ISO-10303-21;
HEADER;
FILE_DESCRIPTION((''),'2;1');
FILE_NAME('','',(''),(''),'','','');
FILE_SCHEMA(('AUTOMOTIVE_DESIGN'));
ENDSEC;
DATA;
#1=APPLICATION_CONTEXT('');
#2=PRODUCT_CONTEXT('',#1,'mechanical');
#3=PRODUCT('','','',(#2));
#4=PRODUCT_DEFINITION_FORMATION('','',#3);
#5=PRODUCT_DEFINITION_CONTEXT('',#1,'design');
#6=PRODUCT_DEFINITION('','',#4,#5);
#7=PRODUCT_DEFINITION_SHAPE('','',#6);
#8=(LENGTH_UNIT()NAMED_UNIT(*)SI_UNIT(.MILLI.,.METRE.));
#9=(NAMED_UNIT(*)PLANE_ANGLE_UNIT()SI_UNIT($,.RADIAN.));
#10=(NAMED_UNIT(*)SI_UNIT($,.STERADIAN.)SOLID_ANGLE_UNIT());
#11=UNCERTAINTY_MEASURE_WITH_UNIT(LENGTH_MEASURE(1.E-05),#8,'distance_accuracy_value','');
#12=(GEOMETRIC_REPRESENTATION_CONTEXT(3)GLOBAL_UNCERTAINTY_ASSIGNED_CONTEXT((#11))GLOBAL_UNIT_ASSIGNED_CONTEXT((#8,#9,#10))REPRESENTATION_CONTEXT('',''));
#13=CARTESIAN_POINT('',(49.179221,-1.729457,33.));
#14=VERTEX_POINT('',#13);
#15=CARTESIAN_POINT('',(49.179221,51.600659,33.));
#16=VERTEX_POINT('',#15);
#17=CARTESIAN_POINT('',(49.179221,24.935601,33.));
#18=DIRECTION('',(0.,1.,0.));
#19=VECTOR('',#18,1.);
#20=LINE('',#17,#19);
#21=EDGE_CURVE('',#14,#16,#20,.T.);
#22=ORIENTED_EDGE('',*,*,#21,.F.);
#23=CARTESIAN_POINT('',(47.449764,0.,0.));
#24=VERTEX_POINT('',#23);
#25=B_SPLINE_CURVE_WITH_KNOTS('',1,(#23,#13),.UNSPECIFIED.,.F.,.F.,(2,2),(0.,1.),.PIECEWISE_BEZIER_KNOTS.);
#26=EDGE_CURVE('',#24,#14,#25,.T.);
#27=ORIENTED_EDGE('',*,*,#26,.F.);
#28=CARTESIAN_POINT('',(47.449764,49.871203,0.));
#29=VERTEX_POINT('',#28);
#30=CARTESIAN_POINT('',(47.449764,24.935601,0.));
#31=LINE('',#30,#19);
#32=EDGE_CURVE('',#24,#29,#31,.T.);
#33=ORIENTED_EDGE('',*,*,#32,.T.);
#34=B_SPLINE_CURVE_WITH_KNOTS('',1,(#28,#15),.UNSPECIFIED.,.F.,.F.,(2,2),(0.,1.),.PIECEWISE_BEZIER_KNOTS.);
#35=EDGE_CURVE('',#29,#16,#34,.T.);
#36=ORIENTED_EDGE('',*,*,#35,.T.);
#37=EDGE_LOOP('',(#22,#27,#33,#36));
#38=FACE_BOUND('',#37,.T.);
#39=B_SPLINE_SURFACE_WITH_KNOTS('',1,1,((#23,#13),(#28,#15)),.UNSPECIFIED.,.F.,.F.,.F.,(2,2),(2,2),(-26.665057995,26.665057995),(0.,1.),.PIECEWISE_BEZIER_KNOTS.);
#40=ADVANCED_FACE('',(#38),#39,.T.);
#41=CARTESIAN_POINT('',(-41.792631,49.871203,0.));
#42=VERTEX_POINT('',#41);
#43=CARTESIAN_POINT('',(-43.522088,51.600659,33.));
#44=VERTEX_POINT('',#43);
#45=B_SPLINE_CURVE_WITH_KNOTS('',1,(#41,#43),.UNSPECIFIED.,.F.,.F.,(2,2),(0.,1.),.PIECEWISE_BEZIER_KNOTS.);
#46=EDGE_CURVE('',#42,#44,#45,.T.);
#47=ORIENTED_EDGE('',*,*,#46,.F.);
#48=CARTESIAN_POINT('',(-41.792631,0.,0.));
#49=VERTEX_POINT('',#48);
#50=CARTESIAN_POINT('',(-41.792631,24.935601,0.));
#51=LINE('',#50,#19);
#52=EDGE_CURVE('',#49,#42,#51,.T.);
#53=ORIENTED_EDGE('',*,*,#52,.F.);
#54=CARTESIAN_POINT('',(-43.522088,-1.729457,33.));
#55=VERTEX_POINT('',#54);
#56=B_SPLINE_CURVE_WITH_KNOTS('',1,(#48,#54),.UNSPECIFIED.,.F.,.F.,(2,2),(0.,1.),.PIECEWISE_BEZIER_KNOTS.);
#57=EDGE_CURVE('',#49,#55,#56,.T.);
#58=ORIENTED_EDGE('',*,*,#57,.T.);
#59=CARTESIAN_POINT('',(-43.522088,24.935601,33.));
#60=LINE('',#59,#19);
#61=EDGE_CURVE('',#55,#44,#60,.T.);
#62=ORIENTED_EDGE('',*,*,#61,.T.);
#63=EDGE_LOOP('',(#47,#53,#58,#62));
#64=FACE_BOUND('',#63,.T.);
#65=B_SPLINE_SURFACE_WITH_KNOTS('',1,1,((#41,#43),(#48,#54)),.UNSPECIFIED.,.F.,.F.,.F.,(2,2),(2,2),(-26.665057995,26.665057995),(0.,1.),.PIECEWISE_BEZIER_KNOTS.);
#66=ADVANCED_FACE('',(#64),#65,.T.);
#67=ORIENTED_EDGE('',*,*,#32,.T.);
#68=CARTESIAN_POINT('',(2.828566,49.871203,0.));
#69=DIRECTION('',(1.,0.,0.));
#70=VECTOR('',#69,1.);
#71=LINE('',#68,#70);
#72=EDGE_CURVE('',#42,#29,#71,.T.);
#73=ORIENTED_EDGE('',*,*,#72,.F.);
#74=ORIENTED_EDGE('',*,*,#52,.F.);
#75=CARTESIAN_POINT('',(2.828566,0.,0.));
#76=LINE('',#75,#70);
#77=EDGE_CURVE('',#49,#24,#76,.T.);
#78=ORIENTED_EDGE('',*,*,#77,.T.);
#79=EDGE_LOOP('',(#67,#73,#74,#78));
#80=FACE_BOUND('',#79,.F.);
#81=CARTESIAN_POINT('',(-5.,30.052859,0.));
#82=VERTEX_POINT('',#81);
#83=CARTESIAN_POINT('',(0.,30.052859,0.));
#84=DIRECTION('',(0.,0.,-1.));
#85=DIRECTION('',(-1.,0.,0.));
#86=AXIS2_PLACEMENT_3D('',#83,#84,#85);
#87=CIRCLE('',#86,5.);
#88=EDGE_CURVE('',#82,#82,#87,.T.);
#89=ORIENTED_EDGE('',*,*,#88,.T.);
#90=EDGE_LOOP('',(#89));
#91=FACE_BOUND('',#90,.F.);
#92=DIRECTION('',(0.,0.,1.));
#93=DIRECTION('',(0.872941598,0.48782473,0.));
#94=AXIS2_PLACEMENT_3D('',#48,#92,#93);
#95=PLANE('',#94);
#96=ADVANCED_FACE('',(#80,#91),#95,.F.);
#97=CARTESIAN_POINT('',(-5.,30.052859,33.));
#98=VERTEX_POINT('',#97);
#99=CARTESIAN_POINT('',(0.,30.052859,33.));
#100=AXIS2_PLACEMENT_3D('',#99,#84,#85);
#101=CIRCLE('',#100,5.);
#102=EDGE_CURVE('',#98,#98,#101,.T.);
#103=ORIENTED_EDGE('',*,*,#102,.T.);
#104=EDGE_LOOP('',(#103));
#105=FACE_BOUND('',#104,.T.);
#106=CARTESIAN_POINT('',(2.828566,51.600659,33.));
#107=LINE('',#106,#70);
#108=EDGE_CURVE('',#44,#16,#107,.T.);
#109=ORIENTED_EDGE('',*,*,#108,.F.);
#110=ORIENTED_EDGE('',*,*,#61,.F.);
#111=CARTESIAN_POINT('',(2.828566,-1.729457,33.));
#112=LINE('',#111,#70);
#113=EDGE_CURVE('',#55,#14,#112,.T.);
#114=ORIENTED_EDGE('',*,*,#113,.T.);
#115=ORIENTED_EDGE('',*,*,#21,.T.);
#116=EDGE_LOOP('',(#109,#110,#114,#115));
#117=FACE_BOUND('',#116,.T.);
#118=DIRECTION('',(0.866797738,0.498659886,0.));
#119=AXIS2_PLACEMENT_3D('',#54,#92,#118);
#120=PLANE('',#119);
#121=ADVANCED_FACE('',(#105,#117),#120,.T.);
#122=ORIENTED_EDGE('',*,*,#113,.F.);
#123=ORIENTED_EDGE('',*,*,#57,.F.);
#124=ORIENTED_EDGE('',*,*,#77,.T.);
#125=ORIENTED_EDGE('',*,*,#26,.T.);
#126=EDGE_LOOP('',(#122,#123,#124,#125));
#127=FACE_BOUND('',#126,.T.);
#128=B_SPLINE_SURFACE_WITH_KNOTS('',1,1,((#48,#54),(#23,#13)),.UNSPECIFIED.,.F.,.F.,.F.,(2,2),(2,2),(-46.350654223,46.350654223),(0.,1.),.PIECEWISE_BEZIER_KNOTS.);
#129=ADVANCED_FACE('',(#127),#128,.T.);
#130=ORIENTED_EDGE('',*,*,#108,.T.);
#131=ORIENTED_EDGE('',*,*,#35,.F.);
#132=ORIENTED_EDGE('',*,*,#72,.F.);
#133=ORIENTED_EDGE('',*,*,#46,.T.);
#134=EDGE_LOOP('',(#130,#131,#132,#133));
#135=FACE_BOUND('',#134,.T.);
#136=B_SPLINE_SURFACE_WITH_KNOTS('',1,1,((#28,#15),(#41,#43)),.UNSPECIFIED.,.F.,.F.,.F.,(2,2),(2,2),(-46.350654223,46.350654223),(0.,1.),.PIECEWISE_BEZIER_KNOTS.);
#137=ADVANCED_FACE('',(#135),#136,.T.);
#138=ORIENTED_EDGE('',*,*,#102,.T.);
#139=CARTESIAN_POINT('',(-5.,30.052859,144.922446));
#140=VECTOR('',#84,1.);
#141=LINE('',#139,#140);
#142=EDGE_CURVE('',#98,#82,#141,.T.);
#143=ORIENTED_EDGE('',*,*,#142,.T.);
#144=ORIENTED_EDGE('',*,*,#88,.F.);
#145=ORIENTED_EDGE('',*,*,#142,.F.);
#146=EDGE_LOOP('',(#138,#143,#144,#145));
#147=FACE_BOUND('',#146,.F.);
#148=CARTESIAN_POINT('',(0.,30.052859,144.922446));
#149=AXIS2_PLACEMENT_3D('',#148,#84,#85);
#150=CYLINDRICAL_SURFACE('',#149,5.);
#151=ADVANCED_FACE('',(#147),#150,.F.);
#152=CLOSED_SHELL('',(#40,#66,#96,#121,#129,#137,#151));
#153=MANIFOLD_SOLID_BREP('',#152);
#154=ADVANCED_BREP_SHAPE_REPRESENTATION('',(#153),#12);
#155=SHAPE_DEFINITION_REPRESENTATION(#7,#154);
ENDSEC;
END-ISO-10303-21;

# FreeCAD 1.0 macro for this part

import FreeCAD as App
import Part
import Sketcher

V = App.Vector
Q = App.Units.Quantity


def add_polygon(sketch, points):
    """Adds a closed chain of lines whose ends are joined by coincident constraints."""
    first, n = sketch.GeometryCount, len(points)
    for a, b in zip(points, points[1:] + points[:1]):
        sketch.addGeometry(Part.LineSegment(App.Vector(*a, 0), App.Vector(*b, 0)), False)
    for i in range(n):
        sketch.addConstraint(Sketcher.Constraint("Coincident", first + i, 2, first + (i + 1) % n, 1))

doc = App.newDocument("Part")
body = doc.addObject("PartDesign::Body", "Body")

# Sketch on XY plane
sketch1 = body.newObject("Sketcher::SketchObject", "Sketch")
sketch1.AttachmentSupport = (doc.getObject("XY_Plane"), [""])
sketch1.MapMode = "FlatFace"
add_polygon(sketch1, [(-42, 50), (-42, 0), (47, 0), (47, 50)])  # lines 0-3
sketch1.addConstraint(Sketcher.Constraint("Vertical", 0))
sketch1.addConstraint(Sketcher.Constraint("Horizontal", 1))
sketch1.addConstraint(Sketcher.Constraint("Vertical", 2))
sketch1.addConstraint(Sketcher.Constraint("Horizontal", 3))
sketch1.addConstraint(Sketcher.Constraint("PointOnObject", 0, 2, -1))
sketch1.addConstraint(Sketcher.Constraint("DistanceX", 1, 1, 1, 2, Q("89.242395 mm")))
sketch1.addConstraint(Sketcher.Constraint("DistanceY", 0, 2, 0, 1, Q("49.871203 mm")))
sketch1.addConstraint(Sketcher.Constraint("DistanceX", 0, 2, -1, 1, Q("41.792631 mm")))
pad1 = body.newObject("PartDesign::Pad", "Pad")
pad1.Profile = sketch1
pad1.Length = 33
pad1.TaperAngle = 3

# Sketch on XY plane
sketch2 = body.newObject("Sketcher::SketchObject", "Sketch001")
sketch2.AttachmentSupport = (doc.getObject("XY_Plane"), [""])
sketch2.MapMode = "FlatFace"
sketch2.AttachmentOffset = App.Placement(V(0, 0, 33), App.Rotation())
sketch2.addGeometry(Part.Circle(V(0, 30, 0), V(0, 0, 1), 5), False)
sketch2.addConstraint(Sketcher.Constraint("PointOnObject", 0, 3, -2))
sketch2.addConstraint(Sketcher.Constraint("Diameter", 0, Q("10 mm")))
sketch2.addConstraint(Sketcher.Constraint("DistanceY", -1, 1, 0, 3, Q("30.052859 mm")))
doc.recompute()
hole = body.newObject("PartDesign::Hole", "Hole")
hole.Profile = sketch2
hole.ThreadType = "None"
hole.Diameter = 10
hole.DepthType = "ThroughAll"

doc.recompute()
